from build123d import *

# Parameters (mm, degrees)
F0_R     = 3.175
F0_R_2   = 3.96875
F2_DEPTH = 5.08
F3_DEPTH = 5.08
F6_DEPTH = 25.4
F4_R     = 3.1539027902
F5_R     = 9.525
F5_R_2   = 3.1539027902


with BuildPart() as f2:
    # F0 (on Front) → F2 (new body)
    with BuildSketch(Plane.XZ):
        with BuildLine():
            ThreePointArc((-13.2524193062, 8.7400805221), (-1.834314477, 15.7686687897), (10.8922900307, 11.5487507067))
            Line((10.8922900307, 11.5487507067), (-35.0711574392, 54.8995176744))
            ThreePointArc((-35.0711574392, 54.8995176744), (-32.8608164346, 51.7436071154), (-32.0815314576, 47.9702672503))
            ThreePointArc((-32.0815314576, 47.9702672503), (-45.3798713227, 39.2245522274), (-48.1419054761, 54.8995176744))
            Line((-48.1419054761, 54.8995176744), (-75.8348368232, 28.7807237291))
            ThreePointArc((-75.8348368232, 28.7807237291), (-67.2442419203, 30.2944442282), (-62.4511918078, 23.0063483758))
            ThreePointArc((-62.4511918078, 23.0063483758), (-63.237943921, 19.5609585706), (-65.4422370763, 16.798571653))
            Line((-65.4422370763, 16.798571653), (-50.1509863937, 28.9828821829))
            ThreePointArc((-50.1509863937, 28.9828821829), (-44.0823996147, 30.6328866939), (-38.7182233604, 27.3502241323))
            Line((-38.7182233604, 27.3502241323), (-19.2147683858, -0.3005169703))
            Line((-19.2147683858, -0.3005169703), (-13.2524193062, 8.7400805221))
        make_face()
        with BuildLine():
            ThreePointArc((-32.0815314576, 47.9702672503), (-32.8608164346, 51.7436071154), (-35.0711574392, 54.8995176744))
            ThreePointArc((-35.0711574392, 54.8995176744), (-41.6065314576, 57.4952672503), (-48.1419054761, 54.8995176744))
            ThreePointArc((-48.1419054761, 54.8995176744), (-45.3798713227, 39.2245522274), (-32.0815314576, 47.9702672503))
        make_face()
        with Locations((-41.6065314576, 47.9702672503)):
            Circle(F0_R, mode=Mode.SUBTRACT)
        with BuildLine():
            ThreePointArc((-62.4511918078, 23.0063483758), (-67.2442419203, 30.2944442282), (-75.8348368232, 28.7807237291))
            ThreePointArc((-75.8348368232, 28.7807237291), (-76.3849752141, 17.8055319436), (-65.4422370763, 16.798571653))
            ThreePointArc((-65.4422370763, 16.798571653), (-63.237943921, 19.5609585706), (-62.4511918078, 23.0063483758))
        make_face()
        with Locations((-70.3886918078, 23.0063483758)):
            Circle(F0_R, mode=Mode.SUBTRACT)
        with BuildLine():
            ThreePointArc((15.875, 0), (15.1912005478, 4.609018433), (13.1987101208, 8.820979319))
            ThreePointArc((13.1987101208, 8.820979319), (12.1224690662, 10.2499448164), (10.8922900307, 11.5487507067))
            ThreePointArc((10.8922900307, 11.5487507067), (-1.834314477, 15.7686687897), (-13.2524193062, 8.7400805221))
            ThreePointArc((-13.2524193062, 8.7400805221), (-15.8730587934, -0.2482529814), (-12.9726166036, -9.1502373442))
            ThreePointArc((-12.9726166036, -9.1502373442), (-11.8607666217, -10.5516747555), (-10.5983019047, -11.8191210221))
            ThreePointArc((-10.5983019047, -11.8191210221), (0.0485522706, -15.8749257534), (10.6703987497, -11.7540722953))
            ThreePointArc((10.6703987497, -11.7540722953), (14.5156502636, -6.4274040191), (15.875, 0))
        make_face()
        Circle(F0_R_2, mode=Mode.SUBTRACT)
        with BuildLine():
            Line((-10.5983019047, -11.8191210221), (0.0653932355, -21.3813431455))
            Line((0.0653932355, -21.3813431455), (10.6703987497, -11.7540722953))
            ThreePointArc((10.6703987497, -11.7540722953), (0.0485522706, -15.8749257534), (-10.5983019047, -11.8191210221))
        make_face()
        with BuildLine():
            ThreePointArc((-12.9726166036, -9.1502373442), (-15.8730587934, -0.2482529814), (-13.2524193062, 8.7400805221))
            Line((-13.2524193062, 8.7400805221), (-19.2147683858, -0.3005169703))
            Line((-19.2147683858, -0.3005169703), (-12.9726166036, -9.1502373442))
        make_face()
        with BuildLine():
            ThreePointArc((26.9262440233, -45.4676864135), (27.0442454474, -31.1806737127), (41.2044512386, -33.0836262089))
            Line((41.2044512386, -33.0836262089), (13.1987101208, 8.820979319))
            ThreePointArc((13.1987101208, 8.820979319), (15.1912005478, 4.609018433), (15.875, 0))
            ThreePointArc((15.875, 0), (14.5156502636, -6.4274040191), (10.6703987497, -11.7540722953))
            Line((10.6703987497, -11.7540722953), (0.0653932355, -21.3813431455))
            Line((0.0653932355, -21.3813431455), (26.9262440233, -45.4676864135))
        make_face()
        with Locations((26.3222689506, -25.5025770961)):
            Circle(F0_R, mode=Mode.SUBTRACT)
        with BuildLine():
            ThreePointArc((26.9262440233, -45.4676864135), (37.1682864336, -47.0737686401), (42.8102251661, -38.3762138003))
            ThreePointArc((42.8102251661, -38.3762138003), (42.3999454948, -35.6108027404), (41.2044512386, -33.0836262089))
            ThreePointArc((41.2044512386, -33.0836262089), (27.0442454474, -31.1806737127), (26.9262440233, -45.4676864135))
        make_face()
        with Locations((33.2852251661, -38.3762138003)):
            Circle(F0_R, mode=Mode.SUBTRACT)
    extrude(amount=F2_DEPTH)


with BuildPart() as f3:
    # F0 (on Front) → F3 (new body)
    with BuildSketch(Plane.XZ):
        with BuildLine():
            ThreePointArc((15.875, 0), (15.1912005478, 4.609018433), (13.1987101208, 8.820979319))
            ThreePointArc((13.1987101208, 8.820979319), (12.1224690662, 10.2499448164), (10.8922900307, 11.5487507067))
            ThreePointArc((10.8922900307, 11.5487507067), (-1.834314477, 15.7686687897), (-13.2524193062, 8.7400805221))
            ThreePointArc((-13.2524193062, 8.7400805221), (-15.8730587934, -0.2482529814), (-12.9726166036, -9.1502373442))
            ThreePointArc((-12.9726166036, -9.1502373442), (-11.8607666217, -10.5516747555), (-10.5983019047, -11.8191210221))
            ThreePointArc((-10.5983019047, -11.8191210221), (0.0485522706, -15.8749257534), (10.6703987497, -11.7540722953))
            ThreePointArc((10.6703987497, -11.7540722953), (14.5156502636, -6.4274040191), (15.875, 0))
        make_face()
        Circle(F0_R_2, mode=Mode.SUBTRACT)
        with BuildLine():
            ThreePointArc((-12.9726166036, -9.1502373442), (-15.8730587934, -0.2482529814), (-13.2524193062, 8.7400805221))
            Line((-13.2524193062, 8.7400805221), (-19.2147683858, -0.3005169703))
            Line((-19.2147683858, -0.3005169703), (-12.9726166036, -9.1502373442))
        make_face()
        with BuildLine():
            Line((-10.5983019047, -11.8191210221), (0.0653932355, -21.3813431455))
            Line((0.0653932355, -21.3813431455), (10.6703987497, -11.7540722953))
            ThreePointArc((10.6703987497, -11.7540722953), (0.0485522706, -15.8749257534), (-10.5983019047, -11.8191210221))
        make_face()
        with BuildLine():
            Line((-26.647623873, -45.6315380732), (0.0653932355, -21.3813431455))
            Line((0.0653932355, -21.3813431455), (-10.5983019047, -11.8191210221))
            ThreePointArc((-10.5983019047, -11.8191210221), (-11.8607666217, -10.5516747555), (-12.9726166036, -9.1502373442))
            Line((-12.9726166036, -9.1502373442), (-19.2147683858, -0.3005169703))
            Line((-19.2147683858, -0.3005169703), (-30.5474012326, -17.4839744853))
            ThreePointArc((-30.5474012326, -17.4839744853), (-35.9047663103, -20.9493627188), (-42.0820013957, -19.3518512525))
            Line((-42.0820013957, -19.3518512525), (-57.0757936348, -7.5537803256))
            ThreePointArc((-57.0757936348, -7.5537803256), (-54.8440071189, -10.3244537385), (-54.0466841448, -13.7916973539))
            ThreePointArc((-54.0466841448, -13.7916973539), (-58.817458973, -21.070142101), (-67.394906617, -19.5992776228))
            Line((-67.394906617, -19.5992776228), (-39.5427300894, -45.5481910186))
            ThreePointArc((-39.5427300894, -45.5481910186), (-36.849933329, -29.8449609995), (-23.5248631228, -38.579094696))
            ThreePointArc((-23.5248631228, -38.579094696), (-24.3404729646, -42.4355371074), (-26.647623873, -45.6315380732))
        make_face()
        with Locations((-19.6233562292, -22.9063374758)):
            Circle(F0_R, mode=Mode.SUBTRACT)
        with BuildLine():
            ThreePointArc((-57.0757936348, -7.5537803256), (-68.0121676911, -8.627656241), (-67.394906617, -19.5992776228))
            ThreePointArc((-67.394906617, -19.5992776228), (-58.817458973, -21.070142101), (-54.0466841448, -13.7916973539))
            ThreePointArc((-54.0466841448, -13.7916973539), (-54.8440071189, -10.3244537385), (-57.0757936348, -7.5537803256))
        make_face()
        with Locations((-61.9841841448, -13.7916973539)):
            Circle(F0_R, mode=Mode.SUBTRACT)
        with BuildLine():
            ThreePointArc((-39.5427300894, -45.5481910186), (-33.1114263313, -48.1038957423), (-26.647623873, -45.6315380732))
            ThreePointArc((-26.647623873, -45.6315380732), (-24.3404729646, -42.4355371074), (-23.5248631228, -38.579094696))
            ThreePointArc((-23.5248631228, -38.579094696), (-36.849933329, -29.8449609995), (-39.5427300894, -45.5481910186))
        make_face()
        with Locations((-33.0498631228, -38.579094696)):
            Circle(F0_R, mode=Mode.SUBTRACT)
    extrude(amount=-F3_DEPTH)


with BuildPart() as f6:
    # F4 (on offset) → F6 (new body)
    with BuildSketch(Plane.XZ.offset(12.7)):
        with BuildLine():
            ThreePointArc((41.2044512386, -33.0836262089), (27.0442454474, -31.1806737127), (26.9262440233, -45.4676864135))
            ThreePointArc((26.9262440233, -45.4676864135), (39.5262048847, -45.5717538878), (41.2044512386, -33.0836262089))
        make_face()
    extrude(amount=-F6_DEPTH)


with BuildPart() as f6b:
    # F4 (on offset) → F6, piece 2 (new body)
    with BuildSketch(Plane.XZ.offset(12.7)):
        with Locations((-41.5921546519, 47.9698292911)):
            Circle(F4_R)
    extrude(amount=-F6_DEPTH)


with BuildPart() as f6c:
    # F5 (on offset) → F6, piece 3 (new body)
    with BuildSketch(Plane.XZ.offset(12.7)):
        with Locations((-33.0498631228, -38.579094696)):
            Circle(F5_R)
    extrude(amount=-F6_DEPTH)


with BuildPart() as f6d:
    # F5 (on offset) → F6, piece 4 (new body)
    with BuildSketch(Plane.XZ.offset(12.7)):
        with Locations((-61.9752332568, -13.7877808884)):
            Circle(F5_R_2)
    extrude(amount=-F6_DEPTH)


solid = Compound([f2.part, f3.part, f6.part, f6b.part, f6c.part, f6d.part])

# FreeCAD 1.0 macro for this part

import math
import FreeCAD as App
import Part
import Sketcher
Q = App.Units.Quantity

doc = App.newDocument("Part")
body = doc.addObject("PartDesign::Body", "Body")

# Sketch on XZ plane
sketch1 = doc.addObject("Sketcher::SketchObject", "Sketch")
body.addObject(sketch1)
sketch1.AttachmentSupport = (doc.XZ_Plane, [""])
sketch1.MapMode = "FlatFace"
sketch1.addGeometry(Part.ArcOfCircle(Part.Circle(App.Vector(0, 0, 0), App.Vector(0, 0, 1), 15.9), math.radians(-144.8), math.radians(-131.88)), False)
sketch1.addGeometry(Part.LineSegment(App.Vector(-10.6, -11.8, 0), App.Vector(0.1, -21.4, 0)), False)
sketch1.addGeometry(Part.LineSegment(App.Vector(0.1, -21.4, 0), App.Vector(26.9, -45.5, 0)), False)
sketch1.addGeometry(Part.ArcOfCircle(Part.Circle(App.Vector(33.3, -38.4, 0), App.Vector(0, 0, 1), 9.5), math.radians(-132), math.radians(0)), False)
sketch1.addGeometry(Part.ArcOfCircle(Part.Circle(App.Vector(33.3, -38.4, 0), App.Vector(0, 0, 1), 9.5), math.radians(0), math.radians(34)), False)
sketch1.addGeometry(Part.LineSegment(App.Vector(41.2, -33.1, 0), App.Vector(13.2, 8.8, 0)), False)
sketch1.addGeometry(Part.ArcOfCircle(Part.Circle(App.Vector(0, 0, 0), App.Vector(0, 0, 1), 15.9), math.radians(33.76), math.radians(46.68)), False)
sketch1.addGeometry(Part.LineSegment(App.Vector(10.9, 11.5, 0), App.Vector(-35.1, 54.9, 0)), False)
sketch1.addGeometry(Part.ArcOfCircle(Part.Circle(App.Vector(-41.6, 48, 0), App.Vector(0, 0, 1), 9.5), math.radians(47), math.radians(133)), False)
sketch1.addGeometry(Part.LineSegment(App.Vector(-48.1, 54.9, 0), App.Vector(-75.8, 28.8, 0)), False)
sketch1.addGeometry(Part.ArcOfCircle(Part.Circle(App.Vector(-70.4, 23, 0), App.Vector(0, 0, 1), 7.9), math.radians(133), math.radians(309)), False)
sketch1.addGeometry(Part.LineSegment(App.Vector(-65.4, 16.8, 0), App.Vector(-50.2, 29, 0)), False)
sketch1.addGeometry(Part.ArcOfCircle(Part.Circle(App.Vector(-45.2, 22.8, 0), App.Vector(0, 0, 1), 7.9), math.radians(35), math.radians(129)), False)
sketch1.addGeometry(Part.LineSegment(App.Vector(-38.7, 27.4, 0), App.Vector(-19.2, -0.3, 0)), False)
sketch1.addGeometry(Part.LineSegment(App.Vector(-19.2, -0.3, 0), App.Vector(-13, -9.2, 0)), False)
sketch1.addGeometry(Part.Circle(App.Vector(33.3, -38.4, 0), App.Vector(0, 0, 1), 3.2), False)
sketch1.addGeometry(Part.Circle(App.Vector(26.3, -25.5, 0), App.Vector(0, 0, 1), 3.2), False)
sketch1.addGeometry(Part.Circle(App.Vector(0, 0, 0), App.Vector(0, 0, 1), 4), False)
sketch1.addGeometry(Part.Circle(App.Vector(-70.4, 23, 0), App.Vector(0, 0, 1), 3.2), False)
sketch1.addGeometry(Part.Circle(App.Vector(-41.6, 48, 0), App.Vector(0, 0, 1), 3.2), False)
sketch1.addConstraint(Sketcher.Constraint("Tangent", 0, 2, 1, 1))
sketch1.addConstraint(Sketcher.Constraint("Coincident", 1, 2, 2, 1))
sketch1.addConstraint(Sketcher.Constraint("Tangent", 2, 2, 3, 1))
sketch1.addConstraint(Sketcher.Constraint("Tangent", 3, 2, 4, 1))
sketch1.addConstraint(Sketcher.Constraint("Tangent", 4, 2, 5, 1))
sketch1.addConstraint(Sketcher.Constraint("Tangent", 5, 2, 6, 1))
sketch1.addConstraint(Sketcher.Constraint("Tangent", 6, 2, 7, 1))
sketch1.addConstraint(Sketcher.Constraint("Tangent", 7, 2, 8, 1))
sketch1.addConstraint(Sketcher.Constraint("Tangent", 8, 2, 9, 1))
sketch1.addConstraint(Sketcher.Constraint("Tangent", 9, 2, 10, 1))
sketch1.addConstraint(Sketcher.Constraint("Tangent", 10, 2, 11, 1))
sketch1.addConstraint(Sketcher.Constraint("Tangent", 11, 2, 12, 2))
sketch1.addConstraint(Sketcher.Constraint("Tangent", 12, 1, 13, 1))
sketch1.addConstraint(Sketcher.Constraint("Coincident", 13, 2, 14, 1))
sketch1.addConstraint(Sketcher.Constraint("Tangent", 14, 2, 0, 1))
sketch1.addConstraint(Sketcher.Constraint("Coincident", 0, 3, -1, 1))
sketch1.addConstraint(Sketcher.Constraint("Coincident", 6, 3, -1, 1))
sketch1.addConstraint(Sketcher.Constraint("Coincident", 17, 3, -1, 1))
sketch1.addConstraint(Sketcher.Constraint("Coincident", 15, 3, 3, 3))
sketch1.addConstraint(Sketcher.Constraint("Coincident", 18, 3, 10, 3))
sketch1.addConstraint(Sketcher.Constraint("Coincident", 19, 3, 8, 3))
sketch1.addConstraint(Sketcher.Constraint("Equal", 3, 4))
sketch1.addConstraint(Sketcher.Constraint("Equal", 0, 6))
sketch1.addConstraint(Sketcher.Constraint("Equal", 4, 8))
sketch1.addConstraint(Sketcher.Constraint("Equal", 10, 12))
sketch1.addConstraint(Sketcher.Constraint("Equal", 15, 16))
sketch1.addConstraint(Sketcher.Constraint("Equal", 16, 18))
sketch1.addConstraint(Sketcher.Constraint("Equal", 18, 19))
sketch1.addConstraint(Sketcher.Constraint("Parallel", 1, 2))
sketch1.addConstraint(Sketcher.Constraint("Parallel", 13, 14))
sketch1.addConstraint(Sketcher.Constraint("Horizontal", 15, 3, 3, 2))
sketch1.addConstraint(Sketcher.Constraint("Horizontal", 7, 2, 8, 2))
sketch1.addConstraint(Sketcher.Constraint("Diameter", 15, Q("0.25 in")))
sketch1.addConstraint(Sketcher.Constraint("Diameter", 17, Q("0.3125 in")))
sketch1.addConstraint(Sketcher.Constraint("Radius", 0, Q("0.625 in")))
sketch1.addConstraint(Sketcher.Constraint("Radius", 3, Q("0.375 in")))
sketch1.addConstraint(Sketcher.Constraint("Radius", 10, Q("0.3125 in")))
sketch1.addConstraint(Sketcher.Constraint("DistanceX", 0, 2, -1, 1, 10.598302))
sketch1.addConstraint(Sketcher.Constraint("DistanceX", 12, 3, 8, 3, 3.598))
sketch1.addConstraint(Sketcher.Constraint("DistanceY", 0, 2, 5, 2, 20.6401))
sketch1.addConstraint(Sketcher.Constraint("DistanceX", 9, 2, 10, 2, 10.3926))
sketch1.addConstraint(Sketcher.Constraint("Distance", 14, 10.829682))
sketch1.addConstraint(Sketcher.Constraint("DistanceX", 8, 3, -1, 1, 41.606531))
sketch1.addConstraint(Sketcher.Constraint("DistanceX", 10, 3, -1, 1, 70.388692))
sketch1.addConstraint(Sketcher.Constraint("DistanceY", -1, 1, 10, 3, 23.006348))
sketch1.addConstraint(Sketcher.Constraint("DistanceX", -1, 1, 16, 3, 26.322269))
sketch1.addConstraint(Sketcher.Constraint("DistanceY", 2, 2, 16, 3, 19.965109))
sketch1.addConstraint(Sketcher.Constraint("DistanceX", 1, 2, 2, 2, 26.860851))
pad1 = doc.addObject("PartDesign::Pad", "Pad")
body.addObject(pad1)
pad1.Profile = sketch1
pad1.Length = Q("0.2 in")
body2 = doc.addObject("PartDesign::Body", "Body001")

# Sketch on XZ plane
sketch2 = doc.addObject("Sketcher::SketchObject", "Sketch001")
body2.addObject(sketch2)
sketch2.AttachmentSupport = (doc.getObject("XZ_Plane001"), [""])
sketch2.MapMode = "FlatFace"
sketch2.addGeometry(Part.ArcOfCircle(Part.Circle(App.Vector(0, 0, 0), App.Vector(0, 0, 1), 15.9), math.radians(0), math.radians(34)), False)
sketch2.addGeometry(Part.ArcOfCircle(Part.Circle(App.Vector(0, 0, 0), App.Vector(0, 0, 1), 15.9), math.radians(33.76), math.radians(46.68)), False)
sketch2.addGeometry(Part.ArcOfCircle(Part.Circle(App.Vector(0, 0, 0), App.Vector(0, 0, 1), 15.9), math.radians(47), math.radians(147)), False)
sketch2.addGeometry(Part.LineSegment(App.Vector(-13.3, 8.7, 0), App.Vector(-19.2, -0.3, 0)), False)
sketch2.addGeometry(Part.LineSegment(App.Vector(-19.2, -0.3, 0), App.Vector(-30.5, -17.5, 0)), False)
sketch2.addGeometry(Part.ArcOfCircle(Part.Circle(App.Vector(-37.2, -13.1, 0), App.Vector(0, 0, 1), 7.9), math.radians(-128), math.radians(-33)), False)
sketch2.addGeometry(Part.LineSegment(App.Vector(-42.1, -19.4, 0), App.Vector(-57.1, -7.6, 0)), False)
sketch2.addGeometry(Part.ArcOfCircle(Part.Circle(App.Vector(-62, -13.8, 0), App.Vector(0, 0, 1), 7.9), math.radians(52), math.radians(227)), False)
sketch2.addGeometry(Part.LineSegment(App.Vector(-67.4, -19.6, 0), App.Vector(-39.5, -45.5, 0)), False)
sketch2.addGeometry(Part.ArcOfCircle(Part.Circle(App.Vector(-33, -38.6, 0), App.Vector(0, 0, 1), 9.5), math.radians(-133), math.radians(-48)), False)
sketch2.addGeometry(Part.LineSegment(App.Vector(-26.6, -45.6, 0), App.Vector(0.1, -21.4, 0)), False)
sketch2.addGeometry(Part.LineSegment(App.Vector(0.1, -21.4, 0), App.Vector(10.7, -11.8, 0)), False)
sketch2.addGeometry(Part.ArcOfCircle(Part.Circle(App.Vector(0, 0, 0), App.Vector(0, 0, 1), 15.9), math.radians(-48), math.radians(0)), False)
sketch2.addGeometry(Part.Circle(App.Vector(-33, -38.6, 0), App.Vector(0, 0, 1), 3.2), False)
sketch2.addGeometry(Part.Circle(App.Vector(-19.6, -22.9, 0), App.Vector(0, 0, 1), 3.2), False)
sketch2.addGeometry(Part.Circle(App.Vector(-62, -13.8, 0), App.Vector(0, 0, 1), 3.2), False)
sketch2.addGeometry(Part.Circle(App.Vector(0, 0, 0), App.Vector(0, 0, 1), 4), False)
sketch2.addConstraint(Sketcher.Constraint("Tangent", 0, 2, 1, 1))
sketch2.addConstraint(Sketcher.Constraint("Tangent", 1, 2, 2, 1))
sketch2.addConstraint(Sketcher.Constraint("Tangent", 2, 2, 3, 1))
sketch2.addConstraint(Sketcher.Constraint("Coincident", 3, 2, 4, 1))
sketch2.addConstraint(Sketcher.Constraint("Tangent", 4, 2, 5, 2))
sketch2.addConstraint(Sketcher.Constraint("Tangent", 5, 1, 6, 1))
sketch2.addConstraint(Sketcher.Constraint("Tangent", 6, 2, 7, 1))
sketch2.addConstraint(Sketcher.Constraint("Tangent", 7, 2, 8, 1))
sketch2.addConstraint(Sketcher.Constraint("Tangent", 8, 2, 9, 1))
sketch2.addConstraint(Sketcher.Constraint("Tangent", 9, 2, 10, 1))
sketch2.addConstraint(Sketcher.Constraint("Coincident", 10, 2, 11, 1))
sketch2.addConstraint(Sketcher.Constraint("Tangent", 11, 2, 12, 1))
sketch2.addConstraint(Sketcher.Constraint("Tangent", 12, 2, 0, 1))
sketch2.addConstraint(Sketcher.Constraint("Coincident", 0, 3, -1, 1))
sketch2.addConstraint(Sketcher.Constraint("Coincident", 2, 3, -1, 1))
sketch2.addConstraint(Sketcher.Constraint("Coincident", 16, 3, -1, 1))
sketch2.addConstraint(Sketcher.Constraint("Coincident", 13, 3, 9, 3))
sketch2.addConstraint(Sketcher.Constraint("Coincident", 15, 3, 7, 3))
sketch2.addConstraint(Sketcher.Constraint("Equal", 5, 7))
sketch2.addConstraint(Sketcher.Constraint("Equal", 2, 12))
sketch2.addConstraint(Sketcher.Constraint("Equal", 13, 14))
sketch2.addConstraint(Sketcher.Constraint("Equal", 14, 15))
sketch2.addConstraint(Sketcher.Constraint("PointOnObject", 12, 2, -1))
sketch2.addConstraint(Sketcher.Constraint("Parallel", 3, 4))
sketch2.addConstraint(Sketcher.Constraint("Parallel", 10, 11))
sketch2.addConstraint(Sketcher.Constraint("Diameter", 13, Q("0.25 in")))
sketch2.addConstraint(Sketcher.Constraint("Diameter", 16, Q("0.3125 in")))
sketch2.addConstraint(Sketcher.Constraint("Radius", 0, Q("0.625 in")))
sketch2.addConstraint(Sketcher.Constraint("Radius", 5, Q("0.3125 in")))
sketch2.addConstraint(Sketcher.Constraint("Radius", 9, Q("0.375 in")))
sketch2.addConstraint(Sketcher.Constraint("Distance", 6, 19.079001))
sketch2.addConstraint(Sketcher.Constraint("DistanceX", 4, 2, -1, 1, 30.547401))
sketch2.addConstraint(Sketcher.Constraint("DistanceX", 5, 1, -1, 1, 42.082001))
sketch2.addConstraint(Sketcher.Constraint("DistanceX", -1, 1, 11, 2, 10.670399))
sketch2.addConstraint(Sketcher.Constraint("DistanceY", 9, 2, 14, 3, 22.725201))
sketch2.addConstraint(Sketcher.Constraint("Distance", 3, 10.829682))
sketch2.addConstraint(Sketcher.Constraint("Distance", 4, 20.583969))
sketch2.addConstraint(Sketcher.Constraint("DistanceX", -1, 1, 0, 2, 13.19871))
sketch2.addConstraint(Sketcher.Constraint("DistanceX", -1, 1, 1, 2, 10.89229))
sketch2.addConstraint(Sketcher.Constraint("DistanceX", 8, 2, -1, 1, 39.54273))
sketch2.addConstraint(Sketcher.Constraint("DistanceX", 14, 3, 10, 2, 19.688749))
sketch2.addConstraint(Sketcher.Constraint("DistanceY", 10, 2, 11, 2, 9.627271))
pad2 = doc.addObject("PartDesign::Pad", "Pad001")
body2.addObject(pad2)
pad2.Profile = sketch2
pad2.Length = Q("0.2 in")
pad2.Reversed = True
body3 = doc.addObject("PartDesign::Body", "Body002")

# Sketch on XZ plane
sketch3 = doc.addObject("Sketcher::SketchObject", "Sketch002")
body3.addObject(sketch3)
sketch3.AttachmentSupport = (doc.getObject("XZ_Plane002"), [""])
sketch3.MapMode = "FlatFace"
sketch3.AttachmentOffset = App.Placement(App.Vector(0, 0, 0.5 * 25.4), App.Rotation())
sketch3.addGeometry(Part.ArcOfCircle(Part.Circle(App.Vector(33, -38, 0), App.Vector(0, 0, 1), 10), math.radians(34), math.radians(228)), False)
sketch3.addGeometry(Part.ArcOfCircle(Part.Circle(App.Vector(33, -38, 0), App.Vector(0, 0, 1), 10), math.radians(-132), math.radians(34)), False)
sketch3.addConstraint(Sketcher.Constraint("Tangent", 0, 1, 1, 2))
sketch3.addConstraint(Sketcher.Constraint("Coincident", 1, 1, 0, 2))
sketch3.addConstraint(Sketcher.Constraint("Radius", 0, Q("0.375 in")))
sketch3.addConstraint(Sketcher.Constraint("DistanceX", -1, 1, 0, 1, 41.204451))
sketch3.addConstraint(Sketcher.Constraint("DistanceX", 1, 1, 0, 3, 6.358981))
sketch3.addConstraint(Sketcher.Constraint("DistanceY", 1, 1, 0, 1, 12.38406))
sketch3.addConstraint(Sketcher.Constraint("DistanceY", 0, 3, -1, 1, 38.376214))
pad3 = doc.addObject("PartDesign::Pad", "Pad002")
body3.addObject(pad3)
pad3.Profile = sketch3
pad3.Length = Q("1 in")
pad3.Reversed = True
body4 = doc.addObject("PartDesign::Body", "Body003")

# Sketch on XZ plane
sketch4 = doc.addObject("Sketcher::SketchObject", "Sketch003")
body4.addObject(sketch4)
sketch4.AttachmentSupport = (doc.getObject("XZ_Plane003"), [""])
sketch4.MapMode = "FlatFace"
sketch4.AttachmentOffset = App.Placement(App.Vector(0, 0, 0.5 * 25.4), App.Rotation())
sketch4.addGeometry(Part.Circle(App.Vector(-41.6, 48, 0), App.Vector(0, 0, 1), 3.2), False)
sketch4.addConstraint(Sketcher.Constraint("Diameter", 0, 6.307806))
sketch4.addConstraint(Sketcher.Constraint("DistanceY", -1, 1, 0, 3, 47.969829))
sketch4.addConstraint(Sketcher.Constraint("DistanceX", 0, 3, -1, 1, 41.592155))
pad4 = doc.addObject("PartDesign::Pad", "Pad003")
body4.addObject(pad4)
pad4.Profile = sketch4
pad4.Length = Q("1 in")
pad4.Reversed = True
body5 = doc.addObject("PartDesign::Body", "Body004")

# Sketch on XZ plane
sketch5 = doc.addObject("Sketcher::SketchObject", "Sketch004")
body5.addObject(sketch5)
sketch5.AttachmentSupport = (doc.getObject("XZ_Plane004"), [""])
sketch5.MapMode = "FlatFace"
sketch5.AttachmentOffset = App.Placement(App.Vector(0, 0, 0.5 * 25.4), App.Rotation())
sketch5.addGeometry(Part.Circle(App.Vector(-33, -39, 0), App.Vector(0, 0, 1), 10), False)
sketch5.addConstraint(Sketcher.Constraint("Diameter", 0, Q("0.75 in")))
sketch5.addConstraint(Sketcher.Constraint("DistanceX", 0, 3, -1, 1, 33.049863))
sketch5.addConstraint(Sketcher.Constraint("DistanceY", 0, 3, -1, 1, 38.579095))
pad5 = doc.addObject("PartDesign::Pad", "Pad004")
body5.addObject(pad5)
pad5.Profile = sketch5
pad5.Length = Q("1 in")
pad5.Reversed = True
body6 = doc.addObject("PartDesign::Body", "Body005")

# Sketch on XZ plane
sketch6 = doc.addObject("Sketcher::SketchObject", "Sketch005")
body6.addObject(sketch6)
sketch6.AttachmentSupport = (doc.getObject("XZ_Plane005"), [""])
sketch6.MapMode = "FlatFace"
sketch6.AttachmentOffset = App.Placement(App.Vector(0, 0, 0.5 * 25.4), App.Rotation())
sketch6.addGeometry(Part.Circle(App.Vector(-62, -13.8, 0), App.Vector(0, 0, 1), 3.2), False)
sketch6.addConstraint(Sketcher.Constraint("Diameter", 0, 6.307806))
sketch6.addConstraint(Sketcher.Constraint("DistanceY", 0, 3, -1, 1, 13.787781))
sketch6.addConstraint(Sketcher.Constraint("DistanceX", 0, 3, -1, 1, 61.975233))
pad6 = doc.addObject("PartDesign::Pad", "Pad005")
body6.addObject(pad6)
pad6.Profile = sketch6
pad6.Length = Q("1 in")
pad6.Reversed = True

doc.recompute()
